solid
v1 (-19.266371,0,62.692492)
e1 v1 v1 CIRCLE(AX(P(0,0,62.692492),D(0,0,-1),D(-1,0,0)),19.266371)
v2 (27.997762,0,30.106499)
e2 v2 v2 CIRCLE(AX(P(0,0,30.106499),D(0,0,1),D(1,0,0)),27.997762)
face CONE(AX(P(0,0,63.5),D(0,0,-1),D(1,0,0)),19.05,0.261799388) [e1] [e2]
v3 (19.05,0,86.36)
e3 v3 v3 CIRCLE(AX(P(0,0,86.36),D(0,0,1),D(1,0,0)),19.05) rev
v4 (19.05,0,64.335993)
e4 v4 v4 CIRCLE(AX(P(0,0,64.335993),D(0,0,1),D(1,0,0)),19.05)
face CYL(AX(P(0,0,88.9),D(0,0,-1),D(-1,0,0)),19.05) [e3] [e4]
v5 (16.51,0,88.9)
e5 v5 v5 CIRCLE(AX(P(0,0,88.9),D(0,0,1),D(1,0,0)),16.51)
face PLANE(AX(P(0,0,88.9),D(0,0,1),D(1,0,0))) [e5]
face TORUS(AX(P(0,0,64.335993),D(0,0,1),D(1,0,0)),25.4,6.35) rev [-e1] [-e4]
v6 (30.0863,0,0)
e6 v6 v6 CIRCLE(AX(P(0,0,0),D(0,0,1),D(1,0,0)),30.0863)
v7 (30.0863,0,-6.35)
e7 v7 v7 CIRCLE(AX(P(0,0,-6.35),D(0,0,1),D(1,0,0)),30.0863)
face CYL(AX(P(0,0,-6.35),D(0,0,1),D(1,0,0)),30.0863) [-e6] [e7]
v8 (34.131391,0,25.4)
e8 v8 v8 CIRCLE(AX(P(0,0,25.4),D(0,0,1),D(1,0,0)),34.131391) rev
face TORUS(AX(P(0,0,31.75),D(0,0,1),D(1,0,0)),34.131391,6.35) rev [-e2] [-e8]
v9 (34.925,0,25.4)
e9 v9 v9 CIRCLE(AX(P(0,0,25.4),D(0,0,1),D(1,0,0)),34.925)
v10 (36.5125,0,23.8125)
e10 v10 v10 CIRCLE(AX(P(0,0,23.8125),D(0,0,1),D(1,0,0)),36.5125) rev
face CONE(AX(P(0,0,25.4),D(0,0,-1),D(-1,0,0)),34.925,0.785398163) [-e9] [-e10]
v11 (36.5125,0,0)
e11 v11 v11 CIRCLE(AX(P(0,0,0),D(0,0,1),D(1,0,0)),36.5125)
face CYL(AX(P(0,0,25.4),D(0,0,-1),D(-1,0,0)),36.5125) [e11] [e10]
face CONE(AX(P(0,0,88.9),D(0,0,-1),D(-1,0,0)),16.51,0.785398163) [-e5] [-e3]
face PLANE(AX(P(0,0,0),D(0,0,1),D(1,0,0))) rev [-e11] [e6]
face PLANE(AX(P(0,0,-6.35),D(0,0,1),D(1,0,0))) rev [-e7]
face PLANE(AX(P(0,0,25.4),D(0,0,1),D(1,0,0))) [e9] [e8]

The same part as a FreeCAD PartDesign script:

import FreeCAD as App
import Part
import Sketcher

V = App.Vector
Q = App.Units.Quantity


def edges_at(feature, points):
    """Names of the edges that pass closest to the given points."""
    edges = feature.Shape.Edges
    near = lambda p: min(range(len(edges)), key=lambda i: edges[i].distToShape(Part.Vertex(*p))[0])
    return sorted({f"Edge{near(p) + 1}" for p in points})


def faces_at(feature, points):
    """Names of the faces that lie closest to the given points."""
    faces = feature.Shape.Faces
    near = lambda p: min(range(len(faces)), key=lambda i: faces[i].distToShape(Part.Vertex(*p))[0])
    return sorted({f"Face{near(p) + 1}" for p in points})

doc = App.newDocument("Part")
body = doc.addObject("PartDesign::Body", "Body")

# Sketch on XY plane
sketch1 = body.newObject("Sketcher::SketchObject", "Sketch")
sketch1.AttachmentSupport = (doc.getObject("XY_Plane"), [""])
sketch1.MapMode = "FlatFace"
sketch1.addGeometry(Part.Circle(V(0, 0, 0), V(0, 0, 1), 30), False)
sketch1.addConstraint(Sketcher.Constraint("Coincident", 0, 3, -1, 1))
sketch1.addConstraint(Sketcher.Constraint("Diameter", 0, Q("2.369 in")))
pad1 = body.newObject("PartDesign::Pad", "Pad")
pad1.Profile = sketch1
pad1.Length = Q("0.25 in")
pad1.Reversed = True

# Sketch on XY plane
sketch2 = body.newObject("Sketcher::SketchObject", "Sketch001")
sketch2.AttachmentSupport = (doc.getObject("XY_Plane"), [""])
sketch2.MapMode = "FlatFace"
sketch2.addGeometry(Part.Circle(V(0, 0, 0), V(0, 0, 1), 37), False)
sketch2.addConstraint(Sketcher.Constraint("Coincident", 0, 3, -1, 1))
sketch2.addConstraint(Sketcher.Constraint("Diameter", 0, Q("2.875 in")))
pad2 = body.newObject("PartDesign::Pad", "Pad001")
pad2.Profile = sketch2
pad2.Length = Q("1 in")

# Sketch on XY plane
sketch3 = body.newObject("Sketcher::SketchObject", "Sketch002")
sketch3.AttachmentSupport = (doc.getObject("XY_Plane"), [""])
sketch3.MapMode = "FlatFace"
sketch3.AttachmentOffset = App.Placement(V(0, 0, 1 * 25.4), App.Rotation())
sketch3.addGeometry(Part.Circle(V(0, 0, 0), V(0, 0, 1), 19), False)
sketch3.addConstraint(Sketcher.Constraint("Coincident", 0, 3, -1, 1))
sketch3.addConstraint(Sketcher.Constraint("Diameter", 0, Q("1.5 in")))
pad3 = body.newObject("PartDesign::Pad", "Pad002")
pad3.Profile = sketch3
pad3.Length = Q("1.5 in")
doc.recompute()

datumplane = body.newObject("PartDesign::Plane", "DatumPlane")
datumplane.AttachmentSupport = (doc.getObject("XY_Plane"), [""])
datumplane.MapMode = "FlatFace"
datumplane.AttachmentOffset = App.Placement(V(0, 0, 2.5 * 25.4), App.Rotation())
draft = body.newObject("PartDesign::Draft", "Draft")
draft.Base = (pad3, faces_at(pad3, [(-19.05, 0, 44.45)]))
draft.NeutralPlane = (datumplane, [""])
draft.Angle = 15
draft.Reversed = False

# Sketch on XY plane
sketch4 = body.newObject("Sketcher::SketchObject", "Sketch003")
sketch4.AttachmentSupport = (doc.getObject("XY_Plane"), [""])
sketch4.MapMode = "FlatFace"
sketch4.AttachmentOffset = App.Placement(V(0, 0, 2.5 * 25.4), App.Rotation())
sketch4.addGeometry(Part.Circle(V(0, 0, 0), V(0, 0, 1), 19), False)
sketch4.addConstraint(Sketcher.Constraint("Coincident", 0, 3, -1, 1))
sketch4.addConstraint(Sketcher.Constraint("Diameter", 0, Q("1.5 in")))
pad4 = body.newObject("PartDesign::Pad", "Pad003")
pad4.Profile = sketch4
pad4.Length = Q("1 in")
doc.recompute()

chamfer = body.newObject("PartDesign::Chamfer", "Chamfer")
chamfer.Base = (pad4, edges_at(pad4, [(-19.05, 0, 88.9)]))
chamfer.Size = Q("0.1 in")
doc.recompute()

fillet = body.newObject("PartDesign::Fillet", "Fillet")
fillet.Base = (chamfer, edges_at(chamfer, [(-19.05, 0, 63.5), (-29.259, 0, 25.4)]))
fillet.Radius = Q("0.25 in")
doc.recompute()

chamfer2 = body.newObject("PartDesign::Chamfer", "Chamfer001")
chamfer2.Base = (fillet, edges_at(fillet, [(-36.513, 0, 25.4)]))
chamfer2.Size = Q("0.0625 in")

doc.recompute()
